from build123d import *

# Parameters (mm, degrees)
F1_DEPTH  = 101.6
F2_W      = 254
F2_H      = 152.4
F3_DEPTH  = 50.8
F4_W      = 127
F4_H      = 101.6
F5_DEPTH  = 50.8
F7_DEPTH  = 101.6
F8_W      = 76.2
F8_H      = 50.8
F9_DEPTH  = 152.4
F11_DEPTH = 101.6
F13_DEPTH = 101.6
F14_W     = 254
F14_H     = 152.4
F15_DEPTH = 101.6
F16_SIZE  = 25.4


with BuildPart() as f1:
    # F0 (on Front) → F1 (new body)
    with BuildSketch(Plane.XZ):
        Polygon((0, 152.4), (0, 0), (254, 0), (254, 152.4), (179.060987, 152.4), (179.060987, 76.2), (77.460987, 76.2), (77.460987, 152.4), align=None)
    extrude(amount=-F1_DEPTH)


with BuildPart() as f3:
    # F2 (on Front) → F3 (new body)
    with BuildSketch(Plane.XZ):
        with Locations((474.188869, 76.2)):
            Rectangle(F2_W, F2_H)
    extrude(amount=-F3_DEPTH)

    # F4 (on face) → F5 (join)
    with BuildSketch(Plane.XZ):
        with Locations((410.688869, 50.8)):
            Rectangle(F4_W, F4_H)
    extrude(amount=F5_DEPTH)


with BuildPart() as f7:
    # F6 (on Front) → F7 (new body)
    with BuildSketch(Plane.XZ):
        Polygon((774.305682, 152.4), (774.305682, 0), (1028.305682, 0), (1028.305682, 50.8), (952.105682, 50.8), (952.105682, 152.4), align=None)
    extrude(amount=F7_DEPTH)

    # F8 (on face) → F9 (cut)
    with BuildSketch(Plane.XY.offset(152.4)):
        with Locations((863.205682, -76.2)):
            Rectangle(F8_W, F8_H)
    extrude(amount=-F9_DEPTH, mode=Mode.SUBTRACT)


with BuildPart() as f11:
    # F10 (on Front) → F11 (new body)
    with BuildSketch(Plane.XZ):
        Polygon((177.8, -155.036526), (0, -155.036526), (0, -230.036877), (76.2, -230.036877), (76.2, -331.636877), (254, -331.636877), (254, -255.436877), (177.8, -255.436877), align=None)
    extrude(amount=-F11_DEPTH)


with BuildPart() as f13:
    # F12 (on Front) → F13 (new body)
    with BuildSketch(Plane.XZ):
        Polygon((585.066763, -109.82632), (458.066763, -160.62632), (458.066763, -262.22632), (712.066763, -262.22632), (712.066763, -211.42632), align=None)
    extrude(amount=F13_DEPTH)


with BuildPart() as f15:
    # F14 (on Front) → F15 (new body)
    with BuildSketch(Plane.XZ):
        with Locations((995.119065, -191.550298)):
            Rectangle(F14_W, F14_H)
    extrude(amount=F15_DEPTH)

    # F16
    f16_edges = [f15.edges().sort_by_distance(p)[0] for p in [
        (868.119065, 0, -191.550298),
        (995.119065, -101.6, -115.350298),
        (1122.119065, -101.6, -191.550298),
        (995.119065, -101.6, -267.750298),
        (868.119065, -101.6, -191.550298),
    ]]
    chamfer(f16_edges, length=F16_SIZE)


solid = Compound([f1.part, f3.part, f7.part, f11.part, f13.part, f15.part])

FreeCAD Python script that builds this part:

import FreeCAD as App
import Part
import Sketcher
Q = App.Units.Quantity


def edges_at(feature, points):
    """Names of the edges that pass closest to the given points."""
    edges = feature.Shape.Edges
    near = lambda p: min(range(len(edges)), key=lambda i: edges[i].distToShape(Part.Vertex(*p))[0])
    return sorted({f"Edge{near(p) + 1}" for p in points})

doc = App.newDocument("Part")
body = doc.addObject("PartDesign::Body", "Body")

# Sketch on XZ plane
sketch1 = body.newObject("Sketcher::SketchObject", "Sketch")
sketch1.AttachmentSupport = (doc.getObject("XZ_Plane"), [""])
sketch1.MapMode = "FlatFace"
sketch1.addGeometry(Part.LineSegment(App.Vector(0, 152, 0), App.Vector(0, 0, 0)), False)
sketch1.addGeometry(Part.LineSegment(App.Vector(0, 0, 0), App.Vector(254, 0, 0)), False)
sketch1.addGeometry(Part.LineSegment(App.Vector(254, 0, 0), App.Vector(254, 152, 0)), False)
sketch1.addGeometry(Part.LineSegment(App.Vector(254, 152, 0), App.Vector(179, 152, 0)), False)
sketch1.addGeometry(Part.LineSegment(App.Vector(179, 152, 0), App.Vector(179, 76, 0)), False)
sketch1.addGeometry(Part.LineSegment(App.Vector(179, 76, 0), App.Vector(77, 76, 0)), False)
sketch1.addGeometry(Part.LineSegment(App.Vector(77, 76, 0), App.Vector(77, 152, 0)), False)
sketch1.addGeometry(Part.LineSegment(App.Vector(77, 152, 0), App.Vector(0, 152, 0)), False)
sketch1.addConstraint(Sketcher.Constraint("Coincident", 0, 2, 1, 1))
sketch1.addConstraint(Sketcher.Constraint("Coincident", 1, 2, 2, 1))
sketch1.addConstraint(Sketcher.Constraint("Coincident", 2, 2, 3, 1))
sketch1.addConstraint(Sketcher.Constraint("Coincident", 3, 2, 4, 1))
sketch1.addConstraint(Sketcher.Constraint("Coincident", 4, 2, 5, 1))
sketch1.addConstraint(Sketcher.Constraint("Coincident", 5, 2, 6, 1))
sketch1.addConstraint(Sketcher.Constraint("Coincident", 6, 2, 7, 1))
sketch1.addConstraint(Sketcher.Constraint("Coincident", 7, 2, 0, 1))
sketch1.addConstraint(Sketcher.Constraint("Vertical", 0))
sketch1.addConstraint(Sketcher.Constraint("Horizontal", 1))
sketch1.addConstraint(Sketcher.Constraint("Vertical", 2))
sketch1.addConstraint(Sketcher.Constraint("Horizontal", 3))
sketch1.addConstraint(Sketcher.Constraint("Vertical", 4))
sketch1.addConstraint(Sketcher.Constraint("Horizontal", 5))
sketch1.addConstraint(Sketcher.Constraint("Vertical", 6))
sketch1.addConstraint(Sketcher.Constraint("Horizontal", 7))
sketch1.addConstraint(Sketcher.Constraint("Coincident", 0, 2, -1, 1))
sketch1.addConstraint(Sketcher.Constraint("Horizontal", 3, 2, 6, 2))
sketch1.addConstraint(Sketcher.Constraint("DistanceX", 1, 1, 1, 2, Q("10 in")))
sketch1.addConstraint(Sketcher.Constraint("DistanceX", 5, 2, 5, 1, Q("4 in")))
sketch1.addConstraint(Sketcher.Constraint("DistanceY", 0, 2, 0, 1, Q("6 in")))
sketch1.addConstraint(Sketcher.Constraint("DistanceY", 4, 2, 4, 1, Q("3 in")))
sketch1.addConstraint(Sketcher.Constraint("DistanceX", 3, 2, 3, 1, 74.939013))
pad1 = body.newObject("PartDesign::Pad", "Pad")
pad1.Profile = sketch1
pad1.Length = Q("4 in")
pad1.Reversed = True
body2 = doc.addObject("PartDesign::Body", "Body001")

# Sketch on XZ plane
sketch2 = body2.newObject("Sketcher::SketchObject", "Sketch001")
sketch2.AttachmentSupport = (doc.getObject("XZ_Plane001"), [""])
sketch2.MapMode = "FlatFace"
sketch2.addGeometry(Part.LineSegment(App.Vector(347, 152, 0), App.Vector(347, 0, 0)), False)
sketch2.addGeometry(Part.LineSegment(App.Vector(347, 0, 0), App.Vector(601, 0, 0)), False)
sketch2.addGeometry(Part.LineSegment(App.Vector(601, 0, 0), App.Vector(601, 152, 0)), False)
sketch2.addGeometry(Part.LineSegment(App.Vector(601, 152, 0), App.Vector(347, 152, 0)), False)
sketch2.addConstraint(Sketcher.Constraint("Coincident", 0, 2, 1, 1))
sketch2.addConstraint(Sketcher.Constraint("Coincident", 1, 2, 2, 1))
sketch2.addConstraint(Sketcher.Constraint("Coincident", 2, 2, 3, 1))
sketch2.addConstraint(Sketcher.Constraint("Coincident", 3, 2, 0, 1))
sketch2.addConstraint(Sketcher.Constraint("Vertical", 0))
sketch2.addConstraint(Sketcher.Constraint("Horizontal", 1))
sketch2.addConstraint(Sketcher.Constraint("Vertical", 2))
sketch2.addConstraint(Sketcher.Constraint("Horizontal", 3))
sketch2.addConstraint(Sketcher.Constraint("PointOnObject", 0, 2, -1))
sketch2.addConstraint(Sketcher.Constraint("DistanceX", 1, 1, 1, 2, Q("10 in")))
sketch2.addConstraint(Sketcher.Constraint("DistanceY", 0, 2, 0, 1, Q("6 in")))
sketch2.addConstraint(Sketcher.Constraint("DistanceX", -1, 1, 0, 2, 347.188869))
pad2 = body2.newObject("PartDesign::Pad", "Pad001")
pad2.Profile = sketch2
pad2.Length = Q("2 in")
pad2.Reversed = True

# Sketch on XZ plane
sketch3 = body2.newObject("Sketcher::SketchObject", "Sketch002")
sketch3.AttachmentSupport = (doc.getObject("XZ_Plane001"), [""])
sketch3.MapMode = "FlatFace"
sketch3.addGeometry(Part.LineSegment(App.Vector(347, 102, 0), App.Vector(347, 0, 0)), False)
sketch3.addGeometry(Part.LineSegment(App.Vector(347, 0, 0), App.Vector(474, 0, 0)), False)
sketch3.addGeometry(Part.LineSegment(App.Vector(474, 0, 0), App.Vector(474, 102, 0)), False)
sketch3.addGeometry(Part.LineSegment(App.Vector(474, 102, 0), App.Vector(347, 102, 0)), False)
sketch3.addConstraint(Sketcher.Constraint("Coincident", 0, 2, 1, 1))
sketch3.addConstraint(Sketcher.Constraint("Coincident", 1, 2, 2, 1))
sketch3.addConstraint(Sketcher.Constraint("Coincident", 2, 2, 3, 1))
sketch3.addConstraint(Sketcher.Constraint("Coincident", 3, 2, 0, 1))
sketch3.addConstraint(Sketcher.Constraint("Vertical", 0))
sketch3.addConstraint(Sketcher.Constraint("Horizontal", 1))
sketch3.addConstraint(Sketcher.Constraint("Vertical", 2))
sketch3.addConstraint(Sketcher.Constraint("Horizontal", 3))
sketch3.addConstraint(Sketcher.Constraint("PointOnObject", 0, 2, -1))
sketch3.addConstraint(Sketcher.Constraint("DistanceX", 1, 1, 1, 2, Q("5 in")))
sketch3.addConstraint(Sketcher.Constraint("DistanceY", 0, 2, 0, 1, Q("4 in")))
sketch3.addConstraint(Sketcher.Constraint("DistanceX", -1, 1, 0, 2, 347.188869))
pad3 = body2.newObject("PartDesign::Pad", "Pad002")
pad3.Profile = sketch3
pad3.Length = Q("2 in")
body3 = doc.addObject("PartDesign::Body", "Body002")

# Sketch on XZ plane
sketch4 = body3.newObject("Sketcher::SketchObject", "Sketch003")
sketch4.AttachmentSupport = (doc.getObject("XZ_Plane002"), [""])
sketch4.MapMode = "FlatFace"
sketch4.addGeometry(Part.LineSegment(App.Vector(774, 152, 0), App.Vector(774, 0, 0)), False)
sketch4.addGeometry(Part.LineSegment(App.Vector(774, 0, 0), App.Vector(1028, 0, 0)), False)
sketch4.addGeometry(Part.LineSegment(App.Vector(1028, 0, 0), App.Vector(1028, 51, 0)), False)
sketch4.addGeometry(Part.LineSegment(App.Vector(1028, 51, 0), App.Vector(952, 51, 0)), False)
sketch4.addGeometry(Part.LineSegment(App.Vector(952, 51, 0), App.Vector(952, 152, 0)), False)
sketch4.addGeometry(Part.LineSegment(App.Vector(952, 152, 0), App.Vector(774, 152, 0)), False)
sketch4.addConstraint(Sketcher.Constraint("Coincident", 0, 2, 1, 1))
sketch4.addConstraint(Sketcher.Constraint("Coincident", 1, 2, 2, 1))
sketch4.addConstraint(Sketcher.Constraint("Coincident", 2, 2, 3, 1))
sketch4.addConstraint(Sketcher.Constraint("Coincident", 3, 2, 4, 1))
sketch4.addConstraint(Sketcher.Constraint("Coincident", 4, 2, 5, 1))
sketch4.addConstraint(Sketcher.Constraint("Coincident", 5, 2, 0, 1))
sketch4.addConstraint(Sketcher.Constraint("Vertical", 0))
sketch4.addConstraint(Sketcher.Constraint("Horizontal", 1))
sketch4.addConstraint(Sketcher.Constraint("Vertical", 2))
sketch4.addConstraint(Sketcher.Constraint("Horizontal", 3))
sketch4.addConstraint(Sketcher.Constraint("Vertical", 4))
sketch4.addConstraint(Sketcher.Constraint("Horizontal", 5))
sketch4.addConstraint(Sketcher.Constraint("PointOnObject", 0, 2, -1))
sketch4.addConstraint(Sketcher.Constraint("DistanceX", 1, 1, 1, 2, Q("10 in")))
sketch4.addConstraint(Sketcher.Constraint("DistanceX", 3, 2, 3, 1, Q("3 in")))
sketch4.addConstraint(Sketcher.Constraint("DistanceY", 0, 2, 0, 1, Q("6 in")))
sketch4.addConstraint(Sketcher.Constraint("DistanceY", 2, 1, 2, 2, Q("2 in")))
sketch4.addConstraint(Sketcher.Constraint("DistanceX", -1, 1, 0, 2, 774.305682))
pad4 = body3.newObject("PartDesign::Pad", "Pad003")
pad4.Profile = sketch4
pad4.Length = Q("4 in")

# Sketch on XY plane
sketch5 = body3.newObject("Sketcher::SketchObject", "Sketch004")
sketch5.AttachmentSupport = (doc.getObject("XY_Plane002"), [""])
sketch5.MapMode = "FlatFace"
sketch5.AttachmentOffset = App.Placement(App.Vector(0, 0, 6 * 25.4), App.Rotation())
sketch5.addGeometry(Part.LineSegment(App.Vector(825, -51, 0), App.Vector(825, -102, 0)), False)
sketch5.addGeometry(Part.LineSegment(App.Vector(825, -102, 0), App.Vector(901, -102, 0)), False)
sketch5.addGeometry(Part.LineSegment(App.Vector(901, -102, 0), App.Vector(901, -51, 0)), False)
sketch5.addGeometry(Part.LineSegment(App.Vector(901, -51, 0), App.Vector(825, -51, 0)), False)
sketch5.addConstraint(Sketcher.Constraint("Coincident", 0, 2, 1, 1))
sketch5.addConstraint(Sketcher.Constraint("Coincident", 1, 2, 2, 1))
sketch5.addConstraint(Sketcher.Constraint("Coincident", 2, 2, 3, 1))
sketch5.addConstraint(Sketcher.Constraint("Coincident", 3, 2, 0, 1))
sketch5.addConstraint(Sketcher.Constraint("Vertical", 0))
sketch5.addConstraint(Sketcher.Constraint("Horizontal", 1))
sketch5.addConstraint(Sketcher.Constraint("Vertical", 2))
sketch5.addConstraint(Sketcher.Constraint("Horizontal", 3))
sketch5.addConstraint(Sketcher.Constraint("DistanceX", 1, 1, 1, 2, Q("3 in")))
sketch5.addConstraint(Sketcher.Constraint("DistanceY", 0, 2, 0, 1, Q("2 in")))
sketch5.addConstraint(Sketcher.Constraint("DistanceY", 0, 2, -1, 1, Q("4 in")))
sketch5.addConstraint(Sketcher.Constraint("DistanceX", -1, 1, 0, 2, 825.105682))
pocket1 = body3.newObject("PartDesign::Pocket", "Pocket")
pocket1.Profile = sketch5
pocket1.Length = Q("6 in")
body4 = doc.addObject("PartDesign::Body", "Body003")

# Sketch on XZ plane
sketch6 = body4.newObject("Sketcher::SketchObject", "Sketch005")
sketch6.AttachmentSupport = (doc.getObject("XZ_Plane003"), [""])
sketch6.MapMode = "FlatFace"
sketch6.addGeometry(Part.LineSegment(App.Vector(178, -155, 0), App.Vector(0, -155, 0)), False)
sketch6.addGeometry(Part.LineSegment(App.Vector(0, -155, 0), App.Vector(0, -230, 0)), False)
sketch6.addGeometry(Part.LineSegment(App.Vector(0, -230, 0), App.Vector(76, -230, 0)), False)
sketch6.addGeometry(Part.LineSegment(App.Vector(76, -230, 0), App.Vector(76, -332, 0)), False)
sketch6.addGeometry(Part.LineSegment(App.Vector(76, -332, 0), App.Vector(254, -332, 0)), False)
sketch6.addGeometry(Part.LineSegment(App.Vector(254, -332, 0), App.Vector(254, -255, 0)), False)
sketch6.addGeometry(Part.LineSegment(App.Vector(254, -255, 0), App.Vector(178, -255, 0)), False)
sketch6.addGeometry(Part.LineSegment(App.Vector(178, -255, 0), App.Vector(178, -155, 0)), False)
sketch6.addConstraint(Sketcher.Constraint("Coincident", 0, 2, 1, 1))
sketch6.addConstraint(Sketcher.Constraint("Coincident", 1, 2, 2, 1))
sketch6.addConstraint(Sketcher.Constraint("Coincident", 2, 2, 3, 1))
sketch6.addConstraint(Sketcher.Constraint("Coincident", 3, 2, 4, 1))
sketch6.addConstraint(Sketcher.Constraint("Coincident", 4, 2, 5, 1))
sketch6.addConstraint(Sketcher.Constraint("Coincident", 5, 2, 6, 1))
sketch6.addConstraint(Sketcher.Constraint("Coincident", 6, 2, 7, 1))
sketch6.addConstraint(Sketcher.Constraint("Coincident", 7, 2, 0, 1))
sketch6.addConstraint(Sketcher.Constraint("Horizontal", 0))
sketch6.addConstraint(Sketcher.Constraint("Vertical", 1))
sketch6.addConstraint(Sketcher.Constraint("Horizontal", 2))
sketch6.addConstraint(Sketcher.Constraint("Vertical", 3))
sketch6.addConstraint(Sketcher.Constraint("Horizontal", 4))
sketch6.addConstraint(Sketcher.Constraint("Vertical", 5))
sketch6.addConstraint(Sketcher.Constraint("Horizontal", 6))
sketch6.addConstraint(Sketcher.Constraint("Vertical", 7))
sketch6.addConstraint(Sketcher.Constraint("PointOnObject", 0, 2, -2))
sketch6.addConstraint(Sketcher.Constraint("Equal", 0, 4))
sketch6.addConstraint(Sketcher.Constraint("Equal", 6, 5))
sketch6.addConstraint(Sketcher.Constraint("DistanceX", 0, 2, 0, 1, Q("7 in")))
sketch6.addConstraint(Sketcher.Constraint("DistanceX", 2, 1, 2, 2, Q("3 in")))
sketch6.addConstraint(Sketcher.Constraint("DistanceY", 3, 2, 3, 1, Q("4 in")))
sketch6.addConstraint(Sketcher.Constraint("DistanceY", 1, 2, 1, 1, 75.000351))
sketch6.addConstraint(Sketcher.Constraint("DistanceY", 0, 2, -1, 1, 155.036526))
pad5 = body4.newObject("PartDesign::Pad", "Pad004")
pad5.Profile = sketch6
pad5.Length = Q("4 in")
pad5.Reversed = True
body5 = doc.addObject("PartDesign::Body", "Body004")

# Sketch on XZ plane
sketch7 = body5.newObject("Sketcher::SketchObject", "Sketch006")
sketch7.AttachmentSupport = (doc.getObject("XZ_Plane004"), [""])
sketch7.MapMode = "FlatFace"
sketch7.addGeometry(Part.LineSegment(App.Vector(585, -110, 0), App.Vector(458, -161, 0)), False)
sketch7.addGeometry(Part.LineSegment(App.Vector(458, -161, 0), App.Vector(458, -262, 0)), False)
sketch7.addGeometry(Part.LineSegment(App.Vector(458, -262, 0), App.Vector(712, -262, 0)), False)
sketch7.addGeometry(Part.LineSegment(App.Vector(712, -262, 0), App.Vector(712, -211, 0)), False)
sketch7.addGeometry(Part.LineSegment(App.Vector(712, -211, 0), App.Vector(585, -110, 0)), False)
sketch7.addConstraint(Sketcher.Constraint("Coincident", 0, 2, 1, 1))
sketch7.addConstraint(Sketcher.Constraint("Coincident", 1, 2, 2, 1))
sketch7.addConstraint(Sketcher.Constraint("Coincident", 2, 2, 3, 1))
sketch7.addConstraint(Sketcher.Constraint("Coincident", 3, 2, 4, 1))
sketch7.addConstraint(Sketcher.Constraint("Coincident", 4, 2, 0, 1))
sketch7.addConstraint(Sketcher.Constraint("Vertical", 1))
sketch7.addConstraint(Sketcher.Constraint("Horizontal", 2))
sketch7.addConstraint(Sketcher.Constraint("Vertical", 3))
sketch7.addConstraint(Sketcher.Constraint("DistanceX", 2, 1, 2, 2, Q("10 in")))
sketch7.addConstraint(Sketcher.Constraint("DistanceY", 1, 2, 1, 1, Q("4 in")))
sketch7.addConstraint(Sketcher.Constraint("DistanceY", 3, 1, 3, 2, Q("2 in")))
sketch7.addConstraint(Sketcher.Constraint("DistanceX", 0, 2, 4, 2, Q("5 in")))
sketch7.addConstraint(Sketcher.Constraint("DistanceY", 0, 2, 4, 2, Q("2 in")))
sketch7.addConstraint(Sketcher.Constraint("DistanceY", 0, 2, -1, 1, 160.62632))
sketch7.addConstraint(Sketcher.Constraint("DistanceX", -1, 1, 0, 2, 458.066763))
pad6 = body5.newObject("PartDesign::Pad", "Pad005")
pad6.Profile = sketch7
pad6.Length = Q("4 in")
body6 = doc.addObject("PartDesign::Body", "Body005")

# Sketch on XZ plane
sketch8 = body6.newObject("Sketcher::SketchObject", "Sketch007")
sketch8.AttachmentSupport = (doc.getObject("XZ_Plane005"), [""])
sketch8.MapMode = "FlatFace"
sketch8.addGeometry(Part.LineSegment(App.Vector(868, -115, 0), App.Vector(868, -268, 0)), False)
sketch8.addGeometry(Part.LineSegment(App.Vector(868, -268, 0), App.Vector(1122, -268, 0)), False)
sketch8.addGeometry(Part.LineSegment(App.Vector(1122, -268, 0), App.Vector(1122, -115, 0)), False)
sketch8.addGeometry(Part.LineSegment(App.Vector(1122, -115, 0), App.Vector(868, -115, 0)), False)
sketch8.addConstraint(Sketcher.Constraint("Coincident", 0, 2, 1, 1))
sketch8.addConstraint(Sketcher.Constraint("Coincident", 1, 2, 2, 1))
sketch8.addConstraint(Sketcher.Constraint("Coincident", 2, 2, 3, 1))
sketch8.addConstraint(Sketcher.Constraint("Coincident", 3, 2, 0, 1))
sketch8.addConstraint(Sketcher.Constraint("Vertical", 0))
sketch8.addConstraint(Sketcher.Constraint("Horizontal", 1))
sketch8.addConstraint(Sketcher.Constraint("Vertical", 2))
sketch8.addConstraint(Sketcher.Constraint("Horizontal", 3))
sketch8.addConstraint(Sketcher.Constraint("DistanceX", 1, 1, 1, 2, Q("10 in")))
sketch8.addConstraint(Sketcher.Constraint("DistanceY", 0, 2, 0, 1, Q("6 in")))
sketch8.addConstraint(Sketcher.Constraint("DistanceY", 0, 2, -1, 1, 267.750298))
sketch8.addConstraint(Sketcher.Constraint("DistanceX", -1, 1, 0, 2, 868.119065))
pad7 = body6.newObject("PartDesign::Pad", "Pad006")
pad7.Profile = sketch8
pad7.Length = Q("4 in")
doc.recompute()

chamfer = body6.newObject("PartDesign::Chamfer", "Chamfer")
chamfer.Base = (pad7, edges_at(pad7, [
    (868.119, 0, -191.55),
    (995.119, -101.6, -115.35),
    (1122.119, -101.6, -191.55),
    (995.119, -101.6, -267.75),
    (868.119, -101.6, -191.55),
]))
chamfer.Size = Q("1 in")

doc.recompute()
